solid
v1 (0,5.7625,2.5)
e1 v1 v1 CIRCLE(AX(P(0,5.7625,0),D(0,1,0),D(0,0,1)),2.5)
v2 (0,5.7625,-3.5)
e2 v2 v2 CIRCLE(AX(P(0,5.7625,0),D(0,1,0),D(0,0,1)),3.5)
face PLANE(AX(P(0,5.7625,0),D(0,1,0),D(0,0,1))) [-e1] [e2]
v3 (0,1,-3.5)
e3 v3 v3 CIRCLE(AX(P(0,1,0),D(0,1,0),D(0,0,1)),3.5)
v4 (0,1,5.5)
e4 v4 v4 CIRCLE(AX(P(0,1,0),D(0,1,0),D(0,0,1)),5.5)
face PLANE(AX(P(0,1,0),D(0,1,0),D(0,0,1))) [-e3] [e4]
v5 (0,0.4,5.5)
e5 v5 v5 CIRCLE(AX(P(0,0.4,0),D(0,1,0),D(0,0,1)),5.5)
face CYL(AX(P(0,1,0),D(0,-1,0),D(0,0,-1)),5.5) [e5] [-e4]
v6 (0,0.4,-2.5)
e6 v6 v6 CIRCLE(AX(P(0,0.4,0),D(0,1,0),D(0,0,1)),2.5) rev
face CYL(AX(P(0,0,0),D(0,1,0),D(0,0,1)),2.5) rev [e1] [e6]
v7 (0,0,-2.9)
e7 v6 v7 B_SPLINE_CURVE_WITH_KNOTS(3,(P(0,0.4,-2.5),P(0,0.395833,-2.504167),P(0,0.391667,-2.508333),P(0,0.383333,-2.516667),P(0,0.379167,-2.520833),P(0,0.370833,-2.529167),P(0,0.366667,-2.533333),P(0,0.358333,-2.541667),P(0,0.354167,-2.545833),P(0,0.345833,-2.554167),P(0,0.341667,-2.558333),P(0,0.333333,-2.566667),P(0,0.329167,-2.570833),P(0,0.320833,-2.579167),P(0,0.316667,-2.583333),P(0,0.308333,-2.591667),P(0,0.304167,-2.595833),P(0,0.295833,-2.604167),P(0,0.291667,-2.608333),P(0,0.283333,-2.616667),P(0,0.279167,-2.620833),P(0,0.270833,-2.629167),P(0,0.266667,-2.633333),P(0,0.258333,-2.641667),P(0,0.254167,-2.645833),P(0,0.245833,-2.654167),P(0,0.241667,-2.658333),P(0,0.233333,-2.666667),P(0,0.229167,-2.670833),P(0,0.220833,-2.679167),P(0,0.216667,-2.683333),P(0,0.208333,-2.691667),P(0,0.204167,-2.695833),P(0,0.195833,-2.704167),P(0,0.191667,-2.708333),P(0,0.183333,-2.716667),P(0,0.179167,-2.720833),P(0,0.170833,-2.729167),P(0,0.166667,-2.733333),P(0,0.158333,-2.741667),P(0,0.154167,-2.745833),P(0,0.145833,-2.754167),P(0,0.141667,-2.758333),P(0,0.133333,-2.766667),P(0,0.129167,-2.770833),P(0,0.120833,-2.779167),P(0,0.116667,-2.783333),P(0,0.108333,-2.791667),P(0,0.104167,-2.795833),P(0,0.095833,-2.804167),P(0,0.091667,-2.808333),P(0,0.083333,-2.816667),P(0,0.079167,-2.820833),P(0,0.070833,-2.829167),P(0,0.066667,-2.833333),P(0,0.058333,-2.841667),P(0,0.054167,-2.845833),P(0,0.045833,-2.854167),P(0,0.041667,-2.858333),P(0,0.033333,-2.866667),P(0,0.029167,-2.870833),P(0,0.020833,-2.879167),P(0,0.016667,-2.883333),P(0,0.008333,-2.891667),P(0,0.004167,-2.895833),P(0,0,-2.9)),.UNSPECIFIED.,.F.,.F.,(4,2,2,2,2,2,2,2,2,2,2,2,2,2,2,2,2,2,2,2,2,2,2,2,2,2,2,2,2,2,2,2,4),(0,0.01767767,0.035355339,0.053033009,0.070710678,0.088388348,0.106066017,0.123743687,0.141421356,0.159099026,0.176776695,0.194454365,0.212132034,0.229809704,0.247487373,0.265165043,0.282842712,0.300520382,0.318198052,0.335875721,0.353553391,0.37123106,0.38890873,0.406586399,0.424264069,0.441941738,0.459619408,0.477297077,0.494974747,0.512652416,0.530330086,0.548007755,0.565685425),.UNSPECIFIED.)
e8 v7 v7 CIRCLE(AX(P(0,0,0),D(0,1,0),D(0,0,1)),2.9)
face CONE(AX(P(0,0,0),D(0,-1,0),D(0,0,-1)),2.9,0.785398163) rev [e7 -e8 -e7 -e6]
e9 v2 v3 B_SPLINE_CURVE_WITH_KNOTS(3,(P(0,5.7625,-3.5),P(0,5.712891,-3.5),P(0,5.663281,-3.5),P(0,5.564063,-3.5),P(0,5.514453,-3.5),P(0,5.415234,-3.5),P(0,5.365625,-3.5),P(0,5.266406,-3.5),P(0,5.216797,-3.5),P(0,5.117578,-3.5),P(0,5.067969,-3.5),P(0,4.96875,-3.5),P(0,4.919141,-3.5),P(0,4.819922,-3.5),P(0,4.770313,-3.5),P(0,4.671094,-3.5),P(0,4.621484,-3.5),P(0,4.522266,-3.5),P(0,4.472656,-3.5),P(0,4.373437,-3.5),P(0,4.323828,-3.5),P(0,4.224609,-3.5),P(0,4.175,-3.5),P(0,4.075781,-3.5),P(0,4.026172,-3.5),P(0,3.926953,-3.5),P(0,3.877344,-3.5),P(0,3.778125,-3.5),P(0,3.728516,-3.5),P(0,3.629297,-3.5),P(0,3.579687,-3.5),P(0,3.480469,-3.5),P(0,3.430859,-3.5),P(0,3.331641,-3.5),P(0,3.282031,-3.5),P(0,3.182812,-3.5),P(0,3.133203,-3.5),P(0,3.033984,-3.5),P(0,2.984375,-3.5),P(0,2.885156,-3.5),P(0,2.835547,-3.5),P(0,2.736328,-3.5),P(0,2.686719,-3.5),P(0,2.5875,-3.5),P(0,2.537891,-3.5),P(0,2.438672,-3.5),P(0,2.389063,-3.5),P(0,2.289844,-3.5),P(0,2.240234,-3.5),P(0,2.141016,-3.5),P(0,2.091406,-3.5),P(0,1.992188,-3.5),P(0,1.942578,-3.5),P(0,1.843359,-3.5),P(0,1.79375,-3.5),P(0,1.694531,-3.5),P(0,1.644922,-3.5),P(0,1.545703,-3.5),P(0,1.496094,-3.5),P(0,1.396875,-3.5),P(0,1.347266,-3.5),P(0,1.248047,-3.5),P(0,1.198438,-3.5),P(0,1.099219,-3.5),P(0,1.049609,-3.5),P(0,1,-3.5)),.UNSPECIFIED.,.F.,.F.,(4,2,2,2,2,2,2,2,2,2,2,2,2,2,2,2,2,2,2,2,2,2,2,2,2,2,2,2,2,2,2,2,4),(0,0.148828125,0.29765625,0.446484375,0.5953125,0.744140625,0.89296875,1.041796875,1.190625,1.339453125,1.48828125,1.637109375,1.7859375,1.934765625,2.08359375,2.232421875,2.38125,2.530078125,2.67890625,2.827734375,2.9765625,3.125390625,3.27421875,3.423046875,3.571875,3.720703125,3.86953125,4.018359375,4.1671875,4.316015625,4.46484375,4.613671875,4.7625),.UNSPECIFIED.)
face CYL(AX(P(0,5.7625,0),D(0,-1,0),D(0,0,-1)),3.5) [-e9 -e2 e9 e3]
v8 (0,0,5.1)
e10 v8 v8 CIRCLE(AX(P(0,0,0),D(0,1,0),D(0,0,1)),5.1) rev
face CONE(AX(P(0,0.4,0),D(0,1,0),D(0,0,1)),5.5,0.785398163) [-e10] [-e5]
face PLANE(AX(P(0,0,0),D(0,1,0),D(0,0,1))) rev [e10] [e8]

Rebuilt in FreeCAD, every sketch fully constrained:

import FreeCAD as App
import Part
import Sketcher
Q = App.Units.Quantity


def edges_at(feature, points):
    """Names of the edges that pass closest to the given points."""
    edges = feature.Shape.Edges
    near = lambda p: min(range(len(edges)), key=lambda i: edges[i].distToShape(Part.Vertex(*p))[0])
    return sorted({f"Edge{near(p) + 1}" for p in points})

doc = App.newDocument("Part")
params = doc.addObject("Spreadsheet::Sheet", "Params")
for row, (alias, value) in enumerate([
    ("sketch1_diameter", "11 mm"),
    ("pad1_length", "1 mm"),
    ("sketch2_diameter", "7 mm"),
    ("pad2_length", "4.7625 mm"),
    ("sketch3_diameter", "5 mm"),
    ("chamfer_size", "0.4 mm"),
], start=1):
    params.set(f"A{row}", alias)
    params.set(f"B{row}", "=" + value)
    params.setAlias(f"B{row}", alias)

body = doc.addObject("PartDesign::Body", "Body")

# Sketch on XZ plane
sketch1 = body.newObject("Sketcher::SketchObject", "Sketch")
sketch1.AttachmentSupport = (doc.getObject("XZ_Plane"), [""])
sketch1.MapMode = "FlatFace"
sketch1.addGeometry(Part.Circle(App.Vector(0, 0, 0), App.Vector(0, 0, 1), 5.5), False)
sketch1.addConstraint([
    Sketcher.Constraint("Coincident", 0, 3, -1, 1),
    Sketcher.Constraint("Diameter", 0, Q("11 mm")),
])
sketch1.setExpression("Constraints[1]", "Params.sketch1_diameter")
pad1 = body.newObject("PartDesign::Pad", "Pad")
pad1.Profile = sketch1
pad1.setExpression("Length", "Params.pad1_length")
pad1.Reversed = True

# Sketch on XZ plane
sketch2 = body.newObject("Sketcher::SketchObject", "Sketch001")
sketch2.AttachmentSupport = (doc.getObject("XZ_Plane"), [""])
sketch2.MapMode = "FlatFace"
sketch2.AttachmentOffset = App.Placement(App.Vector(0, 0, -1), App.Rotation())
sketch2.addGeometry(Part.Circle(App.Vector(0, 0, 0), App.Vector(0, 0, 1), 3.5), False)
sketch2.addConstraint([
    Sketcher.Constraint("Coincident", 0, 3, -1, 1),
    Sketcher.Constraint("Diameter", 0, Q("7 mm")),
])
sketch2.setExpression("Constraints[1]", "Params.sketch2_diameter")
pad2 = body.newObject("PartDesign::Pad", "Pad001")
pad2.Profile = sketch2
pad2.setExpression("Length", "Params.pad2_length")
pad2.Reversed = True

# Sketch on XZ plane
sketch3 = body.newObject("Sketcher::SketchObject", "Sketch002")
sketch3.AttachmentSupport = (doc.getObject("XZ_Plane"), [""])
sketch3.MapMode = "FlatFace"
sketch3.AttachmentOffset = App.Placement(App.Vector(0, 0, -5.7625), App.Rotation())
sketch3.addGeometry(Part.Circle(App.Vector(0, 0, 0), App.Vector(0, 0, 1), 2.5), False)
sketch3.addConstraint([
    Sketcher.Constraint("Coincident", 0, 3, -1, 1),
    Sketcher.Constraint("Diameter", 0, Q("5 mm")),
])
sketch3.setExpression("Constraints[1]", "Params.sketch3_diameter")
pocket1 = body.newObject("PartDesign::Pocket", "Pocket")
pocket1.Profile = sketch3
pocket1.Type = "ThroughAll"
pocket1.Reversed = True
doc.recompute()

chamfer = body.newObject("PartDesign::Chamfer", "Chamfer")
chamfer.Base = (pocket1, edges_at(pocket1, [(0, 0, -2.5), (0, 0, -5.5)]))
chamfer.setExpression("Size", "Params.chamfer_size")

doc.recompute()
